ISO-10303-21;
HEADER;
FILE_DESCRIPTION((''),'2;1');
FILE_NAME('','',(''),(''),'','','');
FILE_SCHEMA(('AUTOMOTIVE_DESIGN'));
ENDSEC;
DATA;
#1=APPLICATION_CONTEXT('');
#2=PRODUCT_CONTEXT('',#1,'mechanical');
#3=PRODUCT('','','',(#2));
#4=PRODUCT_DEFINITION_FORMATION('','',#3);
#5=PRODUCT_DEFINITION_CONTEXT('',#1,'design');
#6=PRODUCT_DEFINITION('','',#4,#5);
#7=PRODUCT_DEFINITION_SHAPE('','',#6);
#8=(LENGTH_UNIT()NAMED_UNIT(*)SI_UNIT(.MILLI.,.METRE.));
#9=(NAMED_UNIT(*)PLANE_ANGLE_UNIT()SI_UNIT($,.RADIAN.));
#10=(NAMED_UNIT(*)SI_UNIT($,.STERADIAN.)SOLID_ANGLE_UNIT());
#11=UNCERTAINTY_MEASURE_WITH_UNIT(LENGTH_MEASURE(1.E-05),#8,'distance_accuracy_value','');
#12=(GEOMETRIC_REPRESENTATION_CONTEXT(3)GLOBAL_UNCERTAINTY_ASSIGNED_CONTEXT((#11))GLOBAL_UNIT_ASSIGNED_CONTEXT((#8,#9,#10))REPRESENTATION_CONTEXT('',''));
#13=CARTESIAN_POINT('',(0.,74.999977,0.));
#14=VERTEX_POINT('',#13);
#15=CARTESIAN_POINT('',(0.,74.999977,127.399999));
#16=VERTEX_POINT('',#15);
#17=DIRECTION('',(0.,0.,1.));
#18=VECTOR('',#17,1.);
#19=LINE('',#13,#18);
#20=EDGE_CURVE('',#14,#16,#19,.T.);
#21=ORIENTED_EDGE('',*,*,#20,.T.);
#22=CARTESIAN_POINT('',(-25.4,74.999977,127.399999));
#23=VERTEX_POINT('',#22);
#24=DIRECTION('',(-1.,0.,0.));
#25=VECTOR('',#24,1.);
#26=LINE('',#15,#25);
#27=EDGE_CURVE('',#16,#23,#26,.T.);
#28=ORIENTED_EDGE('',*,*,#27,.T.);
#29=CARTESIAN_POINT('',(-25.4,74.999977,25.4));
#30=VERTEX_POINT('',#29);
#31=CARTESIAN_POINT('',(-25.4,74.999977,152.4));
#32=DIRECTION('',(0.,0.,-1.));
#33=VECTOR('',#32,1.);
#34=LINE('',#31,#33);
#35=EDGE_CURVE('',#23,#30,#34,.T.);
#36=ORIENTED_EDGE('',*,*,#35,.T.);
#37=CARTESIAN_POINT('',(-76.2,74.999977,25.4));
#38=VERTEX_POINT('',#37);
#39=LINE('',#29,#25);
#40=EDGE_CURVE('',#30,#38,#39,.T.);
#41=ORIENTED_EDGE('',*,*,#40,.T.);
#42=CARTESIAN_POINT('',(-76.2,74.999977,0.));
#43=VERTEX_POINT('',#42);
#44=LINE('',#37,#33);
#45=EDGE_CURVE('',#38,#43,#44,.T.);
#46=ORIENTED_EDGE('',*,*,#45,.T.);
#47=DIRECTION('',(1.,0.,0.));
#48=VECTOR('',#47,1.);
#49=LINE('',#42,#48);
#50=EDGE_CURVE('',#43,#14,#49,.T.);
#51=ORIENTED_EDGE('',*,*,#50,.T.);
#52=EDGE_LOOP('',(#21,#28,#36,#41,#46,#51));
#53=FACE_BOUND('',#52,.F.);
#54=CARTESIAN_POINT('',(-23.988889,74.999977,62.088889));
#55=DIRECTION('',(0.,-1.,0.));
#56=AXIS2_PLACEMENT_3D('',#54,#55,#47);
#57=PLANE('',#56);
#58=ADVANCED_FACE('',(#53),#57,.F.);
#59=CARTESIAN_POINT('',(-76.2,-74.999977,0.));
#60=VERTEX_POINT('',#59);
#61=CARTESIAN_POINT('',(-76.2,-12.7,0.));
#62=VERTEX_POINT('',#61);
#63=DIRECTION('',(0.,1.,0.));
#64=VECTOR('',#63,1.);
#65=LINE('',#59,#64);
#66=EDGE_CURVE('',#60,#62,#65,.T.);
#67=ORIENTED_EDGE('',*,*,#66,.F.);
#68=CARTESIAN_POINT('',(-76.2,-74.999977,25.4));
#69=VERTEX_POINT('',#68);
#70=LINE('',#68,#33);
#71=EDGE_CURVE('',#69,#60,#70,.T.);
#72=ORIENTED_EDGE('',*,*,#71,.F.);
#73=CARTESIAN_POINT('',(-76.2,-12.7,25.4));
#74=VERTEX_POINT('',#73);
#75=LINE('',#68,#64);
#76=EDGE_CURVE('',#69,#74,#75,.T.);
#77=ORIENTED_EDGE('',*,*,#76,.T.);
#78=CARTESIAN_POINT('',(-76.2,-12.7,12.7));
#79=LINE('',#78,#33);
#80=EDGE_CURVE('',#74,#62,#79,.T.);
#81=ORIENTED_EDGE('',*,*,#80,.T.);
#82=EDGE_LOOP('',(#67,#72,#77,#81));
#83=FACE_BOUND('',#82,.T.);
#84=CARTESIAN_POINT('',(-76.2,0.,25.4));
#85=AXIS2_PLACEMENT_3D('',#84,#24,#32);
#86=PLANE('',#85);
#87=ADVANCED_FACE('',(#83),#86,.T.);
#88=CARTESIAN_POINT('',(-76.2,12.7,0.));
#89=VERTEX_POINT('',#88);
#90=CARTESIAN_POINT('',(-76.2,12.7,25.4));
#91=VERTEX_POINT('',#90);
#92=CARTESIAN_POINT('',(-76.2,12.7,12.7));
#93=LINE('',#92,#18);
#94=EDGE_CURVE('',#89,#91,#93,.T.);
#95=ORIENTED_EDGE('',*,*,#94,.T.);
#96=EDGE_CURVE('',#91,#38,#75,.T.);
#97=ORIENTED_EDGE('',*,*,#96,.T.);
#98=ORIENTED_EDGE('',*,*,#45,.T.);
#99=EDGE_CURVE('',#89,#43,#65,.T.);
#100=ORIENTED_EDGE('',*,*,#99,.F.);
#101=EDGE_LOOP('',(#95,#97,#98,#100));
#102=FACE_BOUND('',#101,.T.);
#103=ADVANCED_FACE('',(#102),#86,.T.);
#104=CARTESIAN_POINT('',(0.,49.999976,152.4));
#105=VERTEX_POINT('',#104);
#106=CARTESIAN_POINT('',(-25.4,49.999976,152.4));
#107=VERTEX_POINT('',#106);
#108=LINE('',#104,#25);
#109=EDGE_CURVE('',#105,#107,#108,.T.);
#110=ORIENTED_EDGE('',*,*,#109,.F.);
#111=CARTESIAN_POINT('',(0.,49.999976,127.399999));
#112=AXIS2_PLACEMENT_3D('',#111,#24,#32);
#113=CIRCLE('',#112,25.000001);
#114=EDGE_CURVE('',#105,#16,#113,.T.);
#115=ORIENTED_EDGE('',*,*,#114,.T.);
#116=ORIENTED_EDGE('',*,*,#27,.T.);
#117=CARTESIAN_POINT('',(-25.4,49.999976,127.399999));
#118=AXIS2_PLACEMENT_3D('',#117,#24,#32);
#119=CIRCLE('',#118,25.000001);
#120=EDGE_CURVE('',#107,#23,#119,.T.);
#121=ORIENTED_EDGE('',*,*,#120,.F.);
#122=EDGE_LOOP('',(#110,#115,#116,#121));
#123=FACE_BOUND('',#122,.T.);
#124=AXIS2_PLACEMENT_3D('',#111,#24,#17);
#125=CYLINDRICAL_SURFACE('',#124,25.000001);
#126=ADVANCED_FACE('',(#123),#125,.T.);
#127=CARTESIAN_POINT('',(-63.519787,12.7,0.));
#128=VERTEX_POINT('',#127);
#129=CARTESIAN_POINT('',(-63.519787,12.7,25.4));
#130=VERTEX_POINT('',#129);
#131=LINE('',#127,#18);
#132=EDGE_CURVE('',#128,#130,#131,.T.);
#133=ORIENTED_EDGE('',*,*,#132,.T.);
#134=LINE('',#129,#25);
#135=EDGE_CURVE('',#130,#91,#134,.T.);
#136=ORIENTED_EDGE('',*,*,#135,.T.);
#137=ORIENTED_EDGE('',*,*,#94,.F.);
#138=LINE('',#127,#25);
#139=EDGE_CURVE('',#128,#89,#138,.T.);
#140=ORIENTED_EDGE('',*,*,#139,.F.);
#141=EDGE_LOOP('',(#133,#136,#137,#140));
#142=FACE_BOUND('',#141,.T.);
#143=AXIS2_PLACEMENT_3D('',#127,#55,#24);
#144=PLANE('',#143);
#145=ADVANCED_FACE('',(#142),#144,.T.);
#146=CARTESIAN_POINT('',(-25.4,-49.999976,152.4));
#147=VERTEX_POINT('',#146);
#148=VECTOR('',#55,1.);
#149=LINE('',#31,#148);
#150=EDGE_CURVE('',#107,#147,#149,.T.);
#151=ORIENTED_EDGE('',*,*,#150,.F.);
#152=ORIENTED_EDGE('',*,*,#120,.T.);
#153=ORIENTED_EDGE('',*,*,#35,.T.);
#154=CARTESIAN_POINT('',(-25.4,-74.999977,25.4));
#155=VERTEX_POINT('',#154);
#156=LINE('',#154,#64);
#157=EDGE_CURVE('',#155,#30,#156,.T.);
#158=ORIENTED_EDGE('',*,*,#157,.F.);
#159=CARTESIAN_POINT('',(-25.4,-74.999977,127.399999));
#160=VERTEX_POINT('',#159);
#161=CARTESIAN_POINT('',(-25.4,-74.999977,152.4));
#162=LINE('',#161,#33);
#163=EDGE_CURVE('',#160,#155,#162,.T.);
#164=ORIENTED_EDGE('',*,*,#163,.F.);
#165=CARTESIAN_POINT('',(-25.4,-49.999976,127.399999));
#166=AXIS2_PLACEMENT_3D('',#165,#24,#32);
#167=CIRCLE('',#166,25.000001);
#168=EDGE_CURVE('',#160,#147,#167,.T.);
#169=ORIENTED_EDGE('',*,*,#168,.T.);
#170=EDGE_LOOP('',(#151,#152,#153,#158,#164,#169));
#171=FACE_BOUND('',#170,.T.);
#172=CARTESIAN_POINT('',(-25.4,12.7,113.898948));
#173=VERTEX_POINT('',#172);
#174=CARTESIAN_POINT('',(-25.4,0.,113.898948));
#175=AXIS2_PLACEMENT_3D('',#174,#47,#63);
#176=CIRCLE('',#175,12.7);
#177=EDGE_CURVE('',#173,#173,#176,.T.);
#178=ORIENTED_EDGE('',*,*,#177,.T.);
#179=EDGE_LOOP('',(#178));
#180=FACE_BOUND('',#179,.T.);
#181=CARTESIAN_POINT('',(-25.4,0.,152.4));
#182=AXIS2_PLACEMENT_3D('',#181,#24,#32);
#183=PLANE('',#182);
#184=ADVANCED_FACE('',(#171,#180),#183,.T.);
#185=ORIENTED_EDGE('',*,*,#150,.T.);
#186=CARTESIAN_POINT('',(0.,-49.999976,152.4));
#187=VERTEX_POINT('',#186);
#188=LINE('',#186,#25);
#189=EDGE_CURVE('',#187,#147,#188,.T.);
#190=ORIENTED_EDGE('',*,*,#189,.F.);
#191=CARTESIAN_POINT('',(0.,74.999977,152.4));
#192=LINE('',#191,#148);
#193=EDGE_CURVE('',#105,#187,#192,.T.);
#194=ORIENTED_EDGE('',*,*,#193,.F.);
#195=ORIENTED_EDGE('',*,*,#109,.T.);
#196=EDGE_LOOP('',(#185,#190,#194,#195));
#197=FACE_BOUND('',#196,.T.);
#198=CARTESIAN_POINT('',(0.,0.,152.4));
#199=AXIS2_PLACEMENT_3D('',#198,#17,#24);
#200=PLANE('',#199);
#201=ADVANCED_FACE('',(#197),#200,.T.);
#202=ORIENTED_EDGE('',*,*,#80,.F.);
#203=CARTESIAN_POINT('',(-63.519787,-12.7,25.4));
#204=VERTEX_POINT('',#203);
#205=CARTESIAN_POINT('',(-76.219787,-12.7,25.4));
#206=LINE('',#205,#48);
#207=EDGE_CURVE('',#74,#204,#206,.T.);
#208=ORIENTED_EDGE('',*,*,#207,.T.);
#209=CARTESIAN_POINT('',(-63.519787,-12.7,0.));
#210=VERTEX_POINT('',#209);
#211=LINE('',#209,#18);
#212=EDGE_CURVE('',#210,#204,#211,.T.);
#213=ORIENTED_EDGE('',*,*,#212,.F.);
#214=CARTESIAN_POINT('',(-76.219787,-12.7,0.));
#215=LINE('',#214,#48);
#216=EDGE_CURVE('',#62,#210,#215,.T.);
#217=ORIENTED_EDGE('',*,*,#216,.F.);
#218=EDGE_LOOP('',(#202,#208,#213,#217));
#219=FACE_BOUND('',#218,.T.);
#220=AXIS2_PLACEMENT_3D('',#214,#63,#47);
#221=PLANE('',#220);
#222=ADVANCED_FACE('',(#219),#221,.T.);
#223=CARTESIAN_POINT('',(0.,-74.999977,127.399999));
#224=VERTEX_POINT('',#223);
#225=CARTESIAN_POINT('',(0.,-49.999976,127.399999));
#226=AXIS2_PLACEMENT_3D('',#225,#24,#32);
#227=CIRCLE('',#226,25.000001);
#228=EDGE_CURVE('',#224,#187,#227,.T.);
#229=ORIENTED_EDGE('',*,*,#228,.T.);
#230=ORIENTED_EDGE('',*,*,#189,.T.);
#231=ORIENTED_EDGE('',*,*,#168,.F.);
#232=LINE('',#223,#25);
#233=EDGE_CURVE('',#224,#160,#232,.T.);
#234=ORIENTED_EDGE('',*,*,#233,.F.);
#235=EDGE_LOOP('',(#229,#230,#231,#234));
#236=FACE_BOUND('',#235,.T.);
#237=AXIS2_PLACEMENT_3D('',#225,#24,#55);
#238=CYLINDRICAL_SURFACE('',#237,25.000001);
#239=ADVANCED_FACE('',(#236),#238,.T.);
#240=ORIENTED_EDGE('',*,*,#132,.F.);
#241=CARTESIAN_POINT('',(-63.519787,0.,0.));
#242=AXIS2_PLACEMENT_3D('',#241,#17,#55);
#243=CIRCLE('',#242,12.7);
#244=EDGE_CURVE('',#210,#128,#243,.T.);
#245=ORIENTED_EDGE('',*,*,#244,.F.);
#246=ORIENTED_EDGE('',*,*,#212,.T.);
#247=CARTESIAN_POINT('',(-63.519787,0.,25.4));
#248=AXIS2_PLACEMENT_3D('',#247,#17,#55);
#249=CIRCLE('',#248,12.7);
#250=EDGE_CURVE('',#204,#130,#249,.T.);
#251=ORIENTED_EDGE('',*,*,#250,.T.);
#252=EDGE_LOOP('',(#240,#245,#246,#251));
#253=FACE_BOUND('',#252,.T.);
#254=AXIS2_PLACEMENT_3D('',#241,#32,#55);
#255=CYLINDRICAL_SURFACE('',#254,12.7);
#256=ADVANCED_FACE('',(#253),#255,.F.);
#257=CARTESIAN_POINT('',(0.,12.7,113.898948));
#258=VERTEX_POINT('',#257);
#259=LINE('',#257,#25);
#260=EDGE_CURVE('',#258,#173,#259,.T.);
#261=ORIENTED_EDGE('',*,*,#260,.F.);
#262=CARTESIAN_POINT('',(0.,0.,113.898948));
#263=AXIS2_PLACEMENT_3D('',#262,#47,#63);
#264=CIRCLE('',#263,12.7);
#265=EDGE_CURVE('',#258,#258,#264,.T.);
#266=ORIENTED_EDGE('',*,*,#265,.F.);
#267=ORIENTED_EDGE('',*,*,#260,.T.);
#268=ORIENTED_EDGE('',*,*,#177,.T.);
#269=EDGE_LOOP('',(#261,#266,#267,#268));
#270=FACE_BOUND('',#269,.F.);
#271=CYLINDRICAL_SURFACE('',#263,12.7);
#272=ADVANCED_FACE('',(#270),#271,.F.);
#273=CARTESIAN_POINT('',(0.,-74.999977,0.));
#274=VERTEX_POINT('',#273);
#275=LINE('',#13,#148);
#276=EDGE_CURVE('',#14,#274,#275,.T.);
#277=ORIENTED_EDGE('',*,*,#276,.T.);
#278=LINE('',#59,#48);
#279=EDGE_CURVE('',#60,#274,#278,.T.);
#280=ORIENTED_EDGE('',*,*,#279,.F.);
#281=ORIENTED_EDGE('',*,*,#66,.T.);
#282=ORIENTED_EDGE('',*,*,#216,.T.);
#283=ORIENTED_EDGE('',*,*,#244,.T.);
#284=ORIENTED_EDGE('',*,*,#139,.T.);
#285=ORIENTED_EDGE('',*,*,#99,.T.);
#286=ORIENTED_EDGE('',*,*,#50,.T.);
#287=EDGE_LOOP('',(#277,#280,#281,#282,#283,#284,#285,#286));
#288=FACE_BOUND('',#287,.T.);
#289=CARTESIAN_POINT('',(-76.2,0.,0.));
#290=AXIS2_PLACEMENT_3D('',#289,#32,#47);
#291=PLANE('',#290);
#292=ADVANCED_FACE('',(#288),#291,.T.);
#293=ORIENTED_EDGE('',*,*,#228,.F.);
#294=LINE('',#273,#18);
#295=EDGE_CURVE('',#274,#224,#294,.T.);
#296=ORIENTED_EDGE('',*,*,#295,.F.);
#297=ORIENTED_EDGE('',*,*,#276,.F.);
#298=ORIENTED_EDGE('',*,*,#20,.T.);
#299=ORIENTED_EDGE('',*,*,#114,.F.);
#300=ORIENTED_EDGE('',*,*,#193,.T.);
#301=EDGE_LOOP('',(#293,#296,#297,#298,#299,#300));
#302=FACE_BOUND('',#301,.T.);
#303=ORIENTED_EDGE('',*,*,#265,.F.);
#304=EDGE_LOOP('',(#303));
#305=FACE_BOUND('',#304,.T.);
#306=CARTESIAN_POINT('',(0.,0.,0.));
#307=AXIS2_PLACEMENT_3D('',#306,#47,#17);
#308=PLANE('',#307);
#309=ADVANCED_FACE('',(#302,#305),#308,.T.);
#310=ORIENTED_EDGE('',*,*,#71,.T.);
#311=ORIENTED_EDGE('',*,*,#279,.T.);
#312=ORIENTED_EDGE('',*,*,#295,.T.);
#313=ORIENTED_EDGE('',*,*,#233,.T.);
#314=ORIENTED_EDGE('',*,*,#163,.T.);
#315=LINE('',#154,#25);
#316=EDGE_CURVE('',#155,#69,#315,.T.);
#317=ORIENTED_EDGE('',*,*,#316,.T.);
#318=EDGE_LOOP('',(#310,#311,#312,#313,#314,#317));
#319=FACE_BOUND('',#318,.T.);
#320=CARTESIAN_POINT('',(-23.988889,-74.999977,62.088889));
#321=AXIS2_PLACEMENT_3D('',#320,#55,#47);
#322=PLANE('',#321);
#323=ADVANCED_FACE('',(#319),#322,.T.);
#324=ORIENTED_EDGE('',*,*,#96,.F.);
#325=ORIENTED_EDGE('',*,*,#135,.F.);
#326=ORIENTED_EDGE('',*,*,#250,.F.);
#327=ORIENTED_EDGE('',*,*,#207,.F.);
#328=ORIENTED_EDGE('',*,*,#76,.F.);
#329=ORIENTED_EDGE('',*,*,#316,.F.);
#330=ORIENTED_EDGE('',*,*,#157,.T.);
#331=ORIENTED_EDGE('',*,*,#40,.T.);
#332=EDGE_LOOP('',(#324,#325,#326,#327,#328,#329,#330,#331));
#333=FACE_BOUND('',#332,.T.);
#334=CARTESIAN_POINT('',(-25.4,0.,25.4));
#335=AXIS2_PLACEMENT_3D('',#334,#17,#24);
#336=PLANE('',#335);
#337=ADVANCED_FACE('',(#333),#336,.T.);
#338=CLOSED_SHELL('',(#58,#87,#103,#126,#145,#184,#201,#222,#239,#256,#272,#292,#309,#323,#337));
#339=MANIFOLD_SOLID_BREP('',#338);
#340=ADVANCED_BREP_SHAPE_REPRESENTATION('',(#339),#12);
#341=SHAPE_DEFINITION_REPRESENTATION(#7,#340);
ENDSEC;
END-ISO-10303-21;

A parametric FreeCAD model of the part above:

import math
import FreeCAD as App
import Part
import Sketcher
from FreeCAD import Vector
Q = App.Units.Quantity


def edges_at(feature, points):
    """Names of the edges that pass closest to the given points."""
    edges = feature.Shape.Edges
    near = lambda p: min(range(len(edges)), key=lambda i: edges[i].distToShape(Part.Vertex(*p))[0])
    return sorted({f"Edge{near(p) + 1}" for p in points})

doc = App.newDocument("Part")
body = doc.addObject("PartDesign::Body", "Body")

sketch1 = body.newObject("Sketcher::SketchObject", "Sketch")
sketch1.AttachmentSupport = (doc.getObject("XZ_Plane"), [""])
sketch1.MapMode = "FlatFace"
sketch1.addGeometry(Part.LineSegment(Vector(-76.2, 0, 0), Vector(0, 0, 0)), False)
sketch1.addGeometry(Part.LineSegment(Vector(0, 0, 0), Vector(0, 152.4, 0)), False)
sketch1.addGeometry(Part.LineSegment(Vector(0, 152.4, 0), Vector(-25.4, 152.4, 0)), False)
sketch1.addGeometry(Part.LineSegment(Vector(-25.4, 152.4, 0), Vector(-25.4, 25.4, 0)), False)
sketch1.addGeometry(Part.LineSegment(Vector(-25.4, 25.4, 0), Vector(-76.2, 25.4, 0)), False)
sketch1.addGeometry(Part.LineSegment(Vector(-76.2, 25.4, 0), Vector(-76.2, 0, 0)), False)
sketch1.addConstraint(Sketcher.Constraint("Coincident", 0, 2, 1, 1))
sketch1.addConstraint(Sketcher.Constraint("Coincident", 1, 2, 2, 1))
sketch1.addConstraint(Sketcher.Constraint("Coincident", 2, 2, 3, 1))
sketch1.addConstraint(Sketcher.Constraint("Coincident", 3, 2, 4, 1))
sketch1.addConstraint(Sketcher.Constraint("Coincident", 4, 2, 5, 1))
sketch1.addConstraint(Sketcher.Constraint("Coincident", 5, 2, 0, 1))
sketch1.addConstraint(Sketcher.Constraint("Horizontal", 0))
sketch1.addConstraint(Sketcher.Constraint("Vertical", 1))
sketch1.addConstraint(Sketcher.Constraint("Horizontal", 2))
sketch1.addConstraint(Sketcher.Constraint("Vertical", 3))
sketch1.addConstraint(Sketcher.Constraint("Horizontal", 4))
sketch1.addConstraint(Sketcher.Constraint("Vertical", 5))
sketch1.addConstraint(Sketcher.Constraint("Coincident", 0, 2, -1, 1))
sketch1.addConstraint(Sketcher.Constraint("Equal", 2, 5))
sketch1.addConstraint(Sketcher.Constraint("DistanceX", 0, 1, 0, 2, Q("3 in")))
sketch1.addConstraint(Sketcher.Constraint("DistanceX", 2, 2, 2, 1, Q("1 in")))
sketch1.addConstraint(Sketcher.Constraint("DistanceY", 1, 1, 1, 2, Q("6 in")))
pad1 = body.newObject("PartDesign::Pad", "Pad")
pad1.Profile = sketch1
pad1.Length = 149.999954
pad1.Midplane = True

sketch2 = body.newObject("Sketcher::SketchObject", "Sketch001")
sketch2.AttachmentSupport = (doc.getObject("YZ_Plane"), [""])
sketch2.MapMode = "FlatFace"
sketch2.addGeometry(Part.Circle(Vector(0, 113.898948, 0), Vector(0, 0, 1), 12.7), False)
sketch2.addConstraint(Sketcher.Constraint("PointOnObject", 0, 3, -2))
sketch2.addConstraint(Sketcher.Constraint("Diameter", 0, Q("1 in")))
sketch2.addConstraint(Sketcher.Constraint("DistanceY", -1, 1, 0, 3, Q("113.898948 mm")))
pocket1 = body.newObject("PartDesign::Pocket", "Pocket")
pocket1.Profile = sketch2
pocket1.Length = Q("1 in")

sketch3 = body.newObject("Sketcher::SketchObject", "Sketch002")
sketch3.AttachmentSupport = (doc.getObject("XY_Plane"), [""])
sketch3.MapMode = "FlatFace"
sketch3.addGeometry(Part.ArcOfCircle(Part.Circle(Vector(-63.519787, 0, 0), Vector(0, 0, 1), 12.7), math.radians(-90), math.radians(90)), False)
sketch3.addGeometry(Part.LineSegment(Vector(-63.519787, 12.7, 0), Vector(-76.219787, 12.7, 0)), False)
sketch3.addGeometry(Part.LineSegment(Vector(-76.219787, 12.7, 0), Vector(-76.219787, -12.7, 0)), False)
sketch3.addGeometry(Part.LineSegment(Vector(-76.219787, -12.7, 0), Vector(-63.519787, -12.7, 0)), False)
sketch3.addConstraint(Sketcher.Constraint("Tangent", 0, 2, 1, 1))
sketch3.addConstraint(Sketcher.Constraint("Coincident", 1, 2, 2, 1))
sketch3.addConstraint(Sketcher.Constraint("Coincident", 2, 2, 3, 1))
sketch3.addConstraint(Sketcher.Constraint("Tangent", 3, 2, 0, 1))
sketch3.addConstraint(Sketcher.Constraint("Horizontal", 1))
sketch3.addConstraint(Sketcher.Constraint("Vertical", 2))
sketch3.addConstraint(Sketcher.Constraint("Horizontal", 3))
sketch3.addConstraint(Sketcher.Constraint("PointOnObject", 0, 3, -1))
sketch3.addConstraint(Sketcher.Constraint("Radius", 0, Q("0.5 in")))
sketch3.addConstraint(Sketcher.Constraint("DistanceX", 1, 2, 1, 1, Q("0.5 in")))
sketch3.addConstraint(Sketcher.Constraint("DistanceX", 0, 3, -1, 1, Q("63.519787 mm")))
pocket2 = body.newObject("PartDesign::Pocket", "Pocket001")
pocket2.Profile = sketch3
pocket2.Length = Q("1 in")
pocket2.Reversed = True
doc.recompute()

fillet = body.newObject("PartDesign::Fillet", "Fillet")
fillet.Base = (pocket2, edges_at(pocket2, [(-12.7, -75, 152.4)]))
fillet.Radius = 25.000001
doc.recompute()

fillet2 = body.newObject("PartDesign::Fillet", "Fillet001")
fillet2.Base = (fillet, edges_at(fillet, [(-12.7, 75, 152.4)]))
fillet2.Radius = 25.000001

doc.recompute()
